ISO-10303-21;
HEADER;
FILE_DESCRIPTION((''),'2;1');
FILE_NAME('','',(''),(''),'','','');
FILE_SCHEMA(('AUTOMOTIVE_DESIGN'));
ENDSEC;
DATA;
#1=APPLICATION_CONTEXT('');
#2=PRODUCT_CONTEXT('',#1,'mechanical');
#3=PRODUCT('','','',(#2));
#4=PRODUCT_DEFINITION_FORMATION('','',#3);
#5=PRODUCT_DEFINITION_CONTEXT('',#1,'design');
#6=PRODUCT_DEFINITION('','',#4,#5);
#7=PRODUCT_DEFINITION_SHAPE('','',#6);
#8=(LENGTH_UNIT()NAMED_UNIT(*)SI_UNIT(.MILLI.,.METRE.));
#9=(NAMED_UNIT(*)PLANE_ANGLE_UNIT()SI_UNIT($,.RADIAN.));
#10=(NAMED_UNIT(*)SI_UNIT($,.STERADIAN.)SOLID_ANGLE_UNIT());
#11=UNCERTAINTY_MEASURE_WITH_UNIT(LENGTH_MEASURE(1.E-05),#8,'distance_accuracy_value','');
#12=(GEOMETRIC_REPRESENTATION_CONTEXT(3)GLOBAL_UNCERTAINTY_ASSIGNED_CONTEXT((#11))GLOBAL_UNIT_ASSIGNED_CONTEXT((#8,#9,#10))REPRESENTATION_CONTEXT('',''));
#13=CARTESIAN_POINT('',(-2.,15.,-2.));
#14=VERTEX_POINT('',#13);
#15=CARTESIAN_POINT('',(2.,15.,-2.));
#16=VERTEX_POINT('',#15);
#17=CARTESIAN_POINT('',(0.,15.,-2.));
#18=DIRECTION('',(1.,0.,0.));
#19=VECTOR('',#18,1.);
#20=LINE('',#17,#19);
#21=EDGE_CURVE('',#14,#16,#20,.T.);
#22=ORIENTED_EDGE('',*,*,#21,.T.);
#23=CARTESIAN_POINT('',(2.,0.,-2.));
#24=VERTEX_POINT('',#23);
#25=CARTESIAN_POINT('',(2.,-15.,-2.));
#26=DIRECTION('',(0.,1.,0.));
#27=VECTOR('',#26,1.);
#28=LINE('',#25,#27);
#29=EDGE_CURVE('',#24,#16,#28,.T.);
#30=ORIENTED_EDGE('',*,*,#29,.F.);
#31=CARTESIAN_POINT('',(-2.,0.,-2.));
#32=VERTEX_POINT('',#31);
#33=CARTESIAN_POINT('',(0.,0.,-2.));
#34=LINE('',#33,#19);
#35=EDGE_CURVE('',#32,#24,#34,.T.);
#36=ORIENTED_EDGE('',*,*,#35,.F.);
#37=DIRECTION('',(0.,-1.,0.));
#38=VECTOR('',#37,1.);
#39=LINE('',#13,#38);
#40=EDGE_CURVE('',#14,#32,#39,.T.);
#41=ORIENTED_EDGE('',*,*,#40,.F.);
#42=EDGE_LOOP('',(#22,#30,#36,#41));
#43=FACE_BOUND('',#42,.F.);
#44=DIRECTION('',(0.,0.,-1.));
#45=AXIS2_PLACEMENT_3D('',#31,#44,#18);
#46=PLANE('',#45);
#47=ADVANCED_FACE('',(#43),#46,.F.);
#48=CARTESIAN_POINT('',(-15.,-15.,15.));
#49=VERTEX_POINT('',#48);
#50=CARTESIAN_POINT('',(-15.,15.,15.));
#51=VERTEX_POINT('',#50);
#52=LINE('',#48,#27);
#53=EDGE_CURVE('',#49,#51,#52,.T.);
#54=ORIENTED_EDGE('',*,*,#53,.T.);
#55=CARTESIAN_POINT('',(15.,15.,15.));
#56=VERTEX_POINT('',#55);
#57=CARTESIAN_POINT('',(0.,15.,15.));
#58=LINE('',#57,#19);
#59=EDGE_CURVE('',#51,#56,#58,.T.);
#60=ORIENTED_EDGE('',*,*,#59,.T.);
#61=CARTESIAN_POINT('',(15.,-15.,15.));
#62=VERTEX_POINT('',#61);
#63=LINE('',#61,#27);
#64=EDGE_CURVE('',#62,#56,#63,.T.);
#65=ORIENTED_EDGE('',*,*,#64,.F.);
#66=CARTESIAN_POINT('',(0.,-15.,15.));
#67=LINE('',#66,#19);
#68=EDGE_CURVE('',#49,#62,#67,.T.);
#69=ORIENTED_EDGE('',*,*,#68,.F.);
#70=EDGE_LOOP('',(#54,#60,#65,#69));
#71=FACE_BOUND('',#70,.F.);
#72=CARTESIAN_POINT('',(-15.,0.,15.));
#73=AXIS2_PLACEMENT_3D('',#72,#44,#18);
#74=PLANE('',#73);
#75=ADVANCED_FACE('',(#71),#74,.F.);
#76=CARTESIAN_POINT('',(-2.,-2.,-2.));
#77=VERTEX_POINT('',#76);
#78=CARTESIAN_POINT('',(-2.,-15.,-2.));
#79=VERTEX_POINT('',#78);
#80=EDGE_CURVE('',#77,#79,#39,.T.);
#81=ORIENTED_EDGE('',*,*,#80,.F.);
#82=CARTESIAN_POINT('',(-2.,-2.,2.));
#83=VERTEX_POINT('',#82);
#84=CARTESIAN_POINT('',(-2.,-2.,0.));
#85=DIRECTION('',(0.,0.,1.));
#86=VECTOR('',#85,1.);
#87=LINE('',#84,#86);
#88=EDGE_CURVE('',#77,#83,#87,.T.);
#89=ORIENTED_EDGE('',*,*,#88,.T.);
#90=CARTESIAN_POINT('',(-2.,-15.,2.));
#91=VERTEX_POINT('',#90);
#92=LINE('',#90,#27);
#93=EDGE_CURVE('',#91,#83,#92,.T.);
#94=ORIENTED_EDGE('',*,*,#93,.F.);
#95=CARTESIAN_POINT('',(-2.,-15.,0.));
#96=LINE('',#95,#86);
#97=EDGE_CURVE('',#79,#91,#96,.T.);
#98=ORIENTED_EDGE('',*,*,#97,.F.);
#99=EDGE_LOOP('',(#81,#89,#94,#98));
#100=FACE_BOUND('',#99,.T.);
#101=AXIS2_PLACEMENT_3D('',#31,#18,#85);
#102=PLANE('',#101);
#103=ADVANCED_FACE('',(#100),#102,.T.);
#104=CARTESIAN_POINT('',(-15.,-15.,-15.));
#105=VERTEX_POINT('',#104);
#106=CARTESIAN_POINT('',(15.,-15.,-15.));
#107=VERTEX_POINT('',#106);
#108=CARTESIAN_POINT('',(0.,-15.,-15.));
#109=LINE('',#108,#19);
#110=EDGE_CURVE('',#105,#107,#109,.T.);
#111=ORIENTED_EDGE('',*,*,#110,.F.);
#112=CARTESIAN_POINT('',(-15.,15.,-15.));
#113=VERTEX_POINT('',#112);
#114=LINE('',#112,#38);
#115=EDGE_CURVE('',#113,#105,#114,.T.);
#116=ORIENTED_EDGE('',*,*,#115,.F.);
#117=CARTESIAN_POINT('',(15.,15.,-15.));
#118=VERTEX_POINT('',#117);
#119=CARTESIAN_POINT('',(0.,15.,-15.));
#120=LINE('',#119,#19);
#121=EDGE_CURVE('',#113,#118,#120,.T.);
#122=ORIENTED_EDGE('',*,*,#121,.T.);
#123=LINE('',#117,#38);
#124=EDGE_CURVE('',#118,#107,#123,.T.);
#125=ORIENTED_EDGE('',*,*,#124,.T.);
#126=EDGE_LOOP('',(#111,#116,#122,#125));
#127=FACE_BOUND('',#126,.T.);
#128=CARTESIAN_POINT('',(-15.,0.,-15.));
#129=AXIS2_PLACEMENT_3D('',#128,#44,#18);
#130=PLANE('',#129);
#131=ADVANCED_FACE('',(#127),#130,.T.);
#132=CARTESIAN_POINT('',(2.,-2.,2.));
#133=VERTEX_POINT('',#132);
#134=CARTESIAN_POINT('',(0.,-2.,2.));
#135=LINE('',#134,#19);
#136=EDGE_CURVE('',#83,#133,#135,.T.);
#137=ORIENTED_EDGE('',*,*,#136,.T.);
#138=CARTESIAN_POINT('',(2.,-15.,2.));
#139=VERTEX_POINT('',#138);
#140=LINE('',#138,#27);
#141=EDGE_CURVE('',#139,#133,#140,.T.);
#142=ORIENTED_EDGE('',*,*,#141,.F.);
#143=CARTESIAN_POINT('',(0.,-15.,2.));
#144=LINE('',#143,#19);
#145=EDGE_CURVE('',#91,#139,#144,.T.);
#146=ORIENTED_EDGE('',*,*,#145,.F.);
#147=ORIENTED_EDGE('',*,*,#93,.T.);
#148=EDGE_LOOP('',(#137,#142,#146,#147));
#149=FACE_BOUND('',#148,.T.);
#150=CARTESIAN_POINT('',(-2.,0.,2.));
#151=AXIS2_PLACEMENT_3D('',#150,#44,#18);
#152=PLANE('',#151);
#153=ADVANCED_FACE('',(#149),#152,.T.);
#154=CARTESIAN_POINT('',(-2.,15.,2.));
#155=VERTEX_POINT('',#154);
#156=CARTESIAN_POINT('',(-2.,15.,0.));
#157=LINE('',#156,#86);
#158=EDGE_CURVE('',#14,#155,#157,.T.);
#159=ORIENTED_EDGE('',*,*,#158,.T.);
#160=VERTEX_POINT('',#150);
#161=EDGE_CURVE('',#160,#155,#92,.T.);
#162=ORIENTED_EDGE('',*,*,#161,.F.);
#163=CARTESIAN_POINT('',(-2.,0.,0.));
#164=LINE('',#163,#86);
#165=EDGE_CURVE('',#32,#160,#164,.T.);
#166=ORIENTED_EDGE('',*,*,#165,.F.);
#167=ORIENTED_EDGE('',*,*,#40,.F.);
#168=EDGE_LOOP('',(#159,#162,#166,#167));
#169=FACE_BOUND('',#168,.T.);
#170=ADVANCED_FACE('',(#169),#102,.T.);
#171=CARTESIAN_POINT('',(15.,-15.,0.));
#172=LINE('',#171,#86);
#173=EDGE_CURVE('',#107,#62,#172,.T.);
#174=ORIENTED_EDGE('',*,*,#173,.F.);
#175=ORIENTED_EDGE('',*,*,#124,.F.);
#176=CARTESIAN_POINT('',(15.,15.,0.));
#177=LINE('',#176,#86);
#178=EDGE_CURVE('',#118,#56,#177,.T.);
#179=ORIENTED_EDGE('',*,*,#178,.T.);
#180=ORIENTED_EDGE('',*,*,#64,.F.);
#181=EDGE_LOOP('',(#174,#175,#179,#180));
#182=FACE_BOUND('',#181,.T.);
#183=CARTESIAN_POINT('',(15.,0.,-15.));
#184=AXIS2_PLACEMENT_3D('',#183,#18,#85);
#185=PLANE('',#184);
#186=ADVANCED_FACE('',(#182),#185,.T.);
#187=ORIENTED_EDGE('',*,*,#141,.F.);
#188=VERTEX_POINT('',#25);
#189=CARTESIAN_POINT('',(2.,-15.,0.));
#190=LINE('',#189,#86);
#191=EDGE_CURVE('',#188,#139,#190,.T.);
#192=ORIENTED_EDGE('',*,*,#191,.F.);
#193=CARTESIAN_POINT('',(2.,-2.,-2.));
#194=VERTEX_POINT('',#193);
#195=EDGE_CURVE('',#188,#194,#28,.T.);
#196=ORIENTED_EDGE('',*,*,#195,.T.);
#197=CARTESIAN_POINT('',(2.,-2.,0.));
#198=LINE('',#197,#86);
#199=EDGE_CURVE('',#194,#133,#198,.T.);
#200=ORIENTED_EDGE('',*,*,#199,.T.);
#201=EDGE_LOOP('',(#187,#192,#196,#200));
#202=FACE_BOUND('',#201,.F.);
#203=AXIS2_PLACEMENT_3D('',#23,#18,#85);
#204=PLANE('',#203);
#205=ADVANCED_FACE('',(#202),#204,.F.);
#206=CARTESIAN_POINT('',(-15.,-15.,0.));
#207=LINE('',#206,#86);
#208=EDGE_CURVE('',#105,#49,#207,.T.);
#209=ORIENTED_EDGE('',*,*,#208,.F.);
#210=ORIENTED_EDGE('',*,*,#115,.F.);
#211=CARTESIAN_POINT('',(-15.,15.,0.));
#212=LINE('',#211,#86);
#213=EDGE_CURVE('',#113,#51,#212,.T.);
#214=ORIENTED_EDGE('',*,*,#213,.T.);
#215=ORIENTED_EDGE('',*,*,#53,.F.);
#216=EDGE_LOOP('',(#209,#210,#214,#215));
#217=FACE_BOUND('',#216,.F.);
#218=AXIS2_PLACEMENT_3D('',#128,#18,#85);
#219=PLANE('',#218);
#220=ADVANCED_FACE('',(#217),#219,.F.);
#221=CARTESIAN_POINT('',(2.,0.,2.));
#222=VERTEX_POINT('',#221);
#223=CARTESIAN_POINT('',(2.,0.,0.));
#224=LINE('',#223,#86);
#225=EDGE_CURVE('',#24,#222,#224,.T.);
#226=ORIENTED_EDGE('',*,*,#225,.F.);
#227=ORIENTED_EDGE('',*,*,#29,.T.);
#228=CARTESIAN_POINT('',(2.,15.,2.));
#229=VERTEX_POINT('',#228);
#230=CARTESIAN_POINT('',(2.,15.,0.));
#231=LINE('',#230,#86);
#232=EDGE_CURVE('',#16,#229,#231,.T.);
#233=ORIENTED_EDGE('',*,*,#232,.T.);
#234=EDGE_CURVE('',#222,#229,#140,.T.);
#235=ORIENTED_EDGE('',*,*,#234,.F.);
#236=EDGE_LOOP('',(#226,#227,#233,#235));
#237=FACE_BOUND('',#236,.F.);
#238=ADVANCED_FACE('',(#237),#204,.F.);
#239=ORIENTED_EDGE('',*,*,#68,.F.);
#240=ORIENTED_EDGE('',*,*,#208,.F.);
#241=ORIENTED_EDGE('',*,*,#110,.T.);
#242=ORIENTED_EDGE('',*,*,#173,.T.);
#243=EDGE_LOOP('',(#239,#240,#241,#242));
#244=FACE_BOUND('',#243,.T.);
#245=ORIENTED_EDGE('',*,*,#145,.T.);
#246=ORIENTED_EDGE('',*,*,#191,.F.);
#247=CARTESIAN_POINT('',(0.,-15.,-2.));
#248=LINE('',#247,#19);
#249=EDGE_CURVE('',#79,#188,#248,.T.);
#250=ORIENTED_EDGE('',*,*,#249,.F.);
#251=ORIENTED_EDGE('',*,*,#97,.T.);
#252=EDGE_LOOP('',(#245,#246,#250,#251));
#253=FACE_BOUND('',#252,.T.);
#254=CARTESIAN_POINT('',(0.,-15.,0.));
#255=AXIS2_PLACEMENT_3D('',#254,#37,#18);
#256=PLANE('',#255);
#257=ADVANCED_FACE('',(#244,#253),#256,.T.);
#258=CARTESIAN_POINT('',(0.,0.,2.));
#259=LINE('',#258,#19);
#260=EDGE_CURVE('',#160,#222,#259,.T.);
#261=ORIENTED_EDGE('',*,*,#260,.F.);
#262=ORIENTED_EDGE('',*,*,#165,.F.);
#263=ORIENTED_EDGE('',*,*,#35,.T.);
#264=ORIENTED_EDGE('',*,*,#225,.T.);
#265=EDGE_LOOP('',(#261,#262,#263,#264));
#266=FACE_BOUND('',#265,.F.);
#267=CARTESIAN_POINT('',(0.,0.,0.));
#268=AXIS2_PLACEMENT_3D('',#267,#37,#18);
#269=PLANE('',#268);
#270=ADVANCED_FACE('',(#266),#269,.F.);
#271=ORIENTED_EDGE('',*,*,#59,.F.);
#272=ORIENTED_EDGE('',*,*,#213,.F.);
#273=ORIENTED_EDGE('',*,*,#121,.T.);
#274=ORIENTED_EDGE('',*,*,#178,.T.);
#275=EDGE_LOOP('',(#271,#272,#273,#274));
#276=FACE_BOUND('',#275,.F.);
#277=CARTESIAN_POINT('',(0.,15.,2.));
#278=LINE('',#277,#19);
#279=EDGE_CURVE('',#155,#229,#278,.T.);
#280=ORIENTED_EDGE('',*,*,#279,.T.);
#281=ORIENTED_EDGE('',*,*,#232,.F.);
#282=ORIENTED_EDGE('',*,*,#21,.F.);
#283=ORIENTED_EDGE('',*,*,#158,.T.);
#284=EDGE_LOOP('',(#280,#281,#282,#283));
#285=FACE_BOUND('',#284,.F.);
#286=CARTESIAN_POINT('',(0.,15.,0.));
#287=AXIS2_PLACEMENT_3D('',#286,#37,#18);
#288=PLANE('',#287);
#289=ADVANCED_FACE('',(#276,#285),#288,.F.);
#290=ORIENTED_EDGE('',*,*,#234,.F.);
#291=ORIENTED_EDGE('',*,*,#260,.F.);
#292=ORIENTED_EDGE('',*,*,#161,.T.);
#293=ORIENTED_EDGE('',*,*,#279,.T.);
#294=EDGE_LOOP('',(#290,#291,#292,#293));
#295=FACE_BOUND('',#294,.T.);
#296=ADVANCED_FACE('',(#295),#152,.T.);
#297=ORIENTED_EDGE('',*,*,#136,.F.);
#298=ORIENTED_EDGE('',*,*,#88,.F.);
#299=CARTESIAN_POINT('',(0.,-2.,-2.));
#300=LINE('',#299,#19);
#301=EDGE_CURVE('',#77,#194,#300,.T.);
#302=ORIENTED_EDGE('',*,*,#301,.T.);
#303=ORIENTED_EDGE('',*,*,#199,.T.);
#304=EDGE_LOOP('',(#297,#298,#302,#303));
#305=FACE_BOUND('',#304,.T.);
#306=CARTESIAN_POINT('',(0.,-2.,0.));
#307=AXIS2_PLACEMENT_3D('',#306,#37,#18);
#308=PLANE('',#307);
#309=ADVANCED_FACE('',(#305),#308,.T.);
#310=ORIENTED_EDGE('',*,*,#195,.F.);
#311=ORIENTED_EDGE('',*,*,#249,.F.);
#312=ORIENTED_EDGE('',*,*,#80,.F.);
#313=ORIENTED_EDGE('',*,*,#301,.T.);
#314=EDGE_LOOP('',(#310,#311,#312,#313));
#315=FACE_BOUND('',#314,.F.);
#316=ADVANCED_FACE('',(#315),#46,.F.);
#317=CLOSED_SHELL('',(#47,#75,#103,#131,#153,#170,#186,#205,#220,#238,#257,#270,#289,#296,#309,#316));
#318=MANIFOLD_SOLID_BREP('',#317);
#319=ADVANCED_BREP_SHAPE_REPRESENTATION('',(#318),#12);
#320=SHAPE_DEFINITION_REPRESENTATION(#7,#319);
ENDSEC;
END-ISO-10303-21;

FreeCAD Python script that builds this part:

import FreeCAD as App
import Part
import Sketcher
from FreeCAD import Vector


def add_polygon(sketch, points):
    """Adds a closed chain of lines whose ends are joined by coincident constraints."""
    first, n = sketch.GeometryCount, len(points)
    for a, b in zip(points, points[1:] + points[:1]):
        sketch.addGeometry(Part.LineSegment(App.Vector(*a, 0), App.Vector(*b, 0)), False)
    for i in range(n):
        sketch.addConstraint(Sketcher.Constraint("Coincident", first + i, 2, first + (i + 1) % n, 1))

doc = App.newDocument("Part")
body = doc.addObject("PartDesign::Body", "Body")

# Sketch on XZ plane
sketch1 = body.newObject("Sketcher::SketchObject", "Sketch")
sketch1.AttachmentSupport = (doc.getObject("XZ_Plane"), [""])
sketch1.MapMode = "FlatFace"
add_polygon(sketch1, [(-15, 15), (-15, -15), (15, -15), (15, 15)])  # lines 0-3
add_polygon(sketch1, [(2, -2), (-2, -2), (-2, 2), (2, 2)])  # lines 4-7
sketch1.addConstraint(Sketcher.Constraint("Vertical", 0))
sketch1.addConstraint(Sketcher.Constraint("Horizontal", 1))
sketch1.addConstraint(Sketcher.Constraint("Vertical", 2))
sketch1.addConstraint(Sketcher.Constraint("Horizontal", 3))
sketch1.addConstraint(Sketcher.Constraint("Horizontal", 4))
sketch1.addConstraint(Sketcher.Constraint("Vertical", 5))
sketch1.addConstraint(Sketcher.Constraint("Horizontal", 6))
sketch1.addConstraint(Sketcher.Constraint("Vertical", 7))
sketch1.addConstraint(Sketcher.Constraint("Symmetric", 0, 2, 2, 2, -1, 1))
sketch1.addConstraint(Sketcher.Constraint("Symmetric", 4, 2, 6, 2, -1, 1))
sketch1.addConstraint(Sketcher.Constraint("Equal", 3, 0))
sketch1.addConstraint(Sketcher.Constraint("Equal", 6, 5))
sketch1.addConstraint(Sketcher.Constraint("DistanceX", 1, 1, 1, 2, 30.0))
sketch1.addConstraint(Sketcher.Constraint("DistanceX", 4, 2, 4, 1, 4.0))
pad1 = body.newObject("PartDesign::Pad", "Pad")
pad1.Profile = sketch1
pad1.Length = 30
pad1.Midplane = True

# Sketch on XZ plane
sketch2 = body.newObject("Sketcher::SketchObject", "Sketch001")
sketch2.AttachmentSupport = (doc.getObject("XZ_Plane"), [""])
sketch2.MapMode = "FlatFace"
add_polygon(sketch2, [(-2, 2), (-2, -2), (2, -2), (2, 2)])  # lines 0-3
sketch2.addConstraint(Sketcher.Constraint("Vertical", 0))
sketch2.addConstraint(Sketcher.Constraint("Horizontal", 1))
sketch2.addConstraint(Sketcher.Constraint("Vertical", 2))
sketch2.addConstraint(Sketcher.Constraint("Horizontal", 3))
sketch2.addConstraint(Sketcher.Constraint("Symmetric", 0, 2, 2, 2, -1, 1))
sketch2.addConstraint(Sketcher.Constraint("Equal", 3, 0))
sketch2.addConstraint(Sketcher.Constraint("DistanceX", 1, 1, 1, 2, 4.0))
pad2 = body.newObject("PartDesign::Pad", "Pad001")
pad2.Profile = sketch2
pad2.Length = 2

doc.recompute()
